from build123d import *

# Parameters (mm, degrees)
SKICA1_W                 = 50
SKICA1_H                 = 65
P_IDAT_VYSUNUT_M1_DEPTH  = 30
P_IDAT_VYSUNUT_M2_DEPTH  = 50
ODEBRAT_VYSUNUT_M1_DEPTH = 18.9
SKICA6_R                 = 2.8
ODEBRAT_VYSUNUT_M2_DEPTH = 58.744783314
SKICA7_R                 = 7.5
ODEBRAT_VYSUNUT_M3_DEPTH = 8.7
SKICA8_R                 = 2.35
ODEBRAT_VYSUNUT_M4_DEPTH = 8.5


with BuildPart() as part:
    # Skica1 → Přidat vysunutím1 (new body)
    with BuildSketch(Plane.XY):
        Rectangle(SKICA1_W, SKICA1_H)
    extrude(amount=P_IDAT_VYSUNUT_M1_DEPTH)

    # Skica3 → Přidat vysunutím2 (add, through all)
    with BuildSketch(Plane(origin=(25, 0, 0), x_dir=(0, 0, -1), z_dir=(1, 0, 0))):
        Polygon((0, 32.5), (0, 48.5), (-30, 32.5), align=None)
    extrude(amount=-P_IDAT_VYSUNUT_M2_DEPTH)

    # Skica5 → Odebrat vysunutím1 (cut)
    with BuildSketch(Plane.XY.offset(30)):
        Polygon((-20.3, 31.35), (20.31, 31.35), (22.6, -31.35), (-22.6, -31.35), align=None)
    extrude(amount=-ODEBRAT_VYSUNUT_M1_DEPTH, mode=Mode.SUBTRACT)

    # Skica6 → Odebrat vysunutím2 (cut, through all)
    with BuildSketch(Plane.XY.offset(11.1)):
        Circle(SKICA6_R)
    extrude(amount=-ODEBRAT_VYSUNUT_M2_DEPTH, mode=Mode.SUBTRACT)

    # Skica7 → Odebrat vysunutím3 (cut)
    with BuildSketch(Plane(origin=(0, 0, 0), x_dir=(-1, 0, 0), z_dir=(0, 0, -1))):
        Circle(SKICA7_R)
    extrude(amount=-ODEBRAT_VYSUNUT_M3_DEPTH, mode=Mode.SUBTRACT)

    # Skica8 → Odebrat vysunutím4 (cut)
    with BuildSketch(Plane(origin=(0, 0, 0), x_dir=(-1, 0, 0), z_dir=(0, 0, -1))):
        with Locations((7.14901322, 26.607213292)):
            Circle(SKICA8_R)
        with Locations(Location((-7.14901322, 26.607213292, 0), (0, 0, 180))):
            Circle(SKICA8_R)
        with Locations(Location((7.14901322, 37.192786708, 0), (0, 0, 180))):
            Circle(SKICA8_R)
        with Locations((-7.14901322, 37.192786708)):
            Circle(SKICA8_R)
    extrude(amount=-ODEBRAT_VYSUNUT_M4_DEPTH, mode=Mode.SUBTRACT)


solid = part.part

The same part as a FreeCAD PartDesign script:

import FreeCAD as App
import Part
import Sketcher
from FreeCAD import Vector
Q = App.Units.Quantity


def add_polygon(sketch, points):
    """Adds a closed chain of lines whose ends are joined by coincident constraints."""
    first, n = sketch.GeometryCount, len(points)
    for a, b in zip(points, points[1:] + points[:1]):
        sketch.addGeometry(Part.LineSegment(App.Vector(*a, 0), App.Vector(*b, 0)), False)
    for i in range(n):
        sketch.addConstraint(Sketcher.Constraint("Coincident", first + i, 2, first + (i + 1) % n, 1))

doc = App.newDocument("Part")
body = doc.addObject("PartDesign::Body", "Body")

# Sketch on XY plane
sketch1 = body.newObject("Sketcher::SketchObject", "Sketch")
sketch1.AttachmentSupport = (doc.getObject("XY_Plane"), [""])
sketch1.MapMode = "FlatFace"
add_polygon(sketch1, [(-25, 32), (-25, -32), (25, -32), (25, 32)])  # lines 0-3
sketch1.addConstraint(Sketcher.Constraint("Vertical", 0))
sketch1.addConstraint(Sketcher.Constraint("Horizontal", 1))
sketch1.addConstraint(Sketcher.Constraint("Vertical", 2))
sketch1.addConstraint(Sketcher.Constraint("Horizontal", 3))
sketch1.addConstraint(Sketcher.Constraint("Symmetric", 0, 2, 2, 2, -1, 1))
sketch1.addConstraint(Sketcher.Constraint("DistanceX", 1, 1, 1, 2, Q("50 mm")))
sketch1.addConstraint(Sketcher.Constraint("DistanceY", 0, 2, 0, 1, Q("65 mm")))
pad1 = body.newObject("PartDesign::Pad", "Pad")
pad1.Profile = sketch1
pad1.Length = 30

# Sketch on YZ plane
sketch2 = body.newObject("Sketcher::SketchObject", "Sketch001")
sketch2.AttachmentSupport = (doc.getObject("YZ_Plane"), [""])
sketch2.MapMode = "FlatFace"
sketch2.AttachmentOffset = App.Placement(Vector(0, 0, 25), App.Rotation())
add_polygon(sketch2, [(32, 0), (48, 0), (32, 30)])  # lines 0-2
sketch2.addConstraint(Sketcher.Constraint("Horizontal", 0))
sketch2.addConstraint(Sketcher.Constraint("Vertical", 2))
sketch2.addConstraint(Sketcher.Constraint("PointOnObject", 0, 2, -1))
sketch2.addConstraint(Sketcher.Constraint("DistanceX", 0, 1, 0, 2, Q("16 mm")))
sketch2.addConstraint(Sketcher.Constraint("DistanceY", 2, 2, 2, 1, Q("30 mm")))
sketch2.addConstraint(Sketcher.Constraint("DistanceX", -1, 1, 0, 2, Q("48.5 mm")))
pad2 = body.newObject("PartDesign::Pad", "Pad001")
pad2.Profile = sketch2
pad2.Length = 50
pad2.Reversed = True

# Sketch on XY plane
sketch3 = body.newObject("Sketcher::SketchObject", "Sketch002")
sketch3.AttachmentSupport = (doc.getObject("XY_Plane"), [""])
sketch3.MapMode = "FlatFace"
sketch3.AttachmentOffset = App.Placement(Vector(0, 0, 30), App.Rotation())
add_polygon(sketch3, [(20, 31), (-20, 31), (-23, -31), (23, -31)])  # lines 0-3
sketch3.addConstraint(Sketcher.Constraint("Horizontal", 0))
sketch3.addConstraint(Sketcher.Constraint("Horizontal", 2))
sketch3.addConstraint(Sketcher.Constraint("DistanceX", 2, 1, 2, 2, Q("45.2 mm")))
sketch3.addConstraint(Sketcher.Constraint("DistanceX", 0, 2, 0, 1, Q("40.61 mm")))
sketch3.addConstraint(Sketcher.Constraint("DistanceX", 0, 2, -1, 1, Q("20.3 mm")))
sketch3.addConstraint(Sketcher.Constraint("DistanceX", 1, 2, -1, 1, Q("22.6 mm")))
sketch3.addConstraint(Sketcher.Constraint("DistanceY", 1, 2, 0, 2, Q("62.7 mm")))
sketch3.addConstraint(Sketcher.Constraint("DistanceY", -1, 1, 0, 2, Q("31.35 mm")))
pocket1 = body.newObject("PartDesign::Pocket", "Pocket")
pocket1.Profile = sketch3
pocket1.Length = 18.9

# Sketch on XY plane
sketch4 = body.newObject("Sketcher::SketchObject", "Sketch003")
sketch4.AttachmentSupport = (doc.getObject("XY_Plane"), [""])
sketch4.MapMode = "FlatFace"
sketch4.AttachmentOffset = App.Placement(Vector(0, 0, 11.1), App.Rotation())
sketch4.addGeometry(Part.Circle(Vector(0, 0, 0), Vector(0, 0, 1), 2.8), False)
sketch4.addConstraint(Sketcher.Constraint("Coincident", 0, 3, -1, 1))
sketch4.addConstraint(Sketcher.Constraint("Diameter", 0, Q("5.6 mm")))
pocket2 = body.newObject("PartDesign::Pocket", "Pocket001")
pocket2.Profile = sketch4
pocket2.Type = "ThroughAll"

# Sketch on XY plane
sketch5 = body.newObject("Sketcher::SketchObject", "Sketch004")
sketch5.AttachmentSupport = (doc.getObject("XY_Plane"), [""])
sketch5.MapMode = "FlatFace"
sketch5.addGeometry(Part.Circle(Vector(0, 0, 0), Vector(0, 0, 1), 8), False)
sketch5.addConstraint(Sketcher.Constraint("Coincident", 0, 3, -1, 1))
sketch5.addConstraint(Sketcher.Constraint("Diameter", 0, Q("15 mm")))
pocket3 = body.newObject("PartDesign::Pocket", "Pocket002")
pocket3.Profile = sketch5
pocket3.Length = 8.7
pocket3.Reversed = True

# Sketch on XY plane
sketch6 = body.newObject("Sketcher::SketchObject", "Sketch005")
sketch6.AttachmentSupport = (doc.getObject("XY_Plane"), [""])
sketch6.MapMode = "FlatFace"
sketch6.addGeometry(Part.Circle(Vector(-7.1, 26.6, 0), Vector(0, 0, 1), 2.4), False)
sketch6.addGeometry(Part.Circle(Vector(7.1, 26.6, 0), Vector(0, 0, 1), 2.4), False)
sketch6.addGeometry(Part.Circle(Vector(-7.1, 37.2, 0), Vector(0, 0, 1), 2.4), False)
sketch6.addGeometry(Part.Circle(Vector(7.1, 37.2, 0), Vector(0, 0, 1), 2.4), False)
sketch6.addConstraint(Sketcher.Constraint("Equal", 0, 1))
sketch6.addConstraint(Sketcher.Constraint("Equal", 1, 2))
sketch6.addConstraint(Sketcher.Constraint("Equal", 2, 3))
sketch6.addConstraint(Sketcher.Constraint("Symmetric", 0, 3, 1, 3, -2))
sketch6.addConstraint(Sketcher.Constraint("Symmetric", 2, 3, 3, 3, -2))
sketch6.addConstraint(Sketcher.Constraint("Vertical", 0, 3, 2, 3))
sketch6.addConstraint(Sketcher.Constraint("Diameter", 0, Q("4.7 mm")))
sketch6.addConstraint(Sketcher.Constraint("DistanceX", 0, 3, -1, 1, Q("7.149013 mm")))
sketch6.addConstraint(Sketcher.Constraint("DistanceY", -1, 1, 0, 3, Q("26.607213 mm")))
sketch6.addConstraint(Sketcher.Constraint("DistanceY", -1, 1, 2, 3, Q("37.192787 mm")))
pocket4 = body.newObject("PartDesign::Pocket", "Pocket003")
pocket4.Profile = sketch6
pocket4.Length = 8.5
pocket4.Reversed = True

doc.recompute()
